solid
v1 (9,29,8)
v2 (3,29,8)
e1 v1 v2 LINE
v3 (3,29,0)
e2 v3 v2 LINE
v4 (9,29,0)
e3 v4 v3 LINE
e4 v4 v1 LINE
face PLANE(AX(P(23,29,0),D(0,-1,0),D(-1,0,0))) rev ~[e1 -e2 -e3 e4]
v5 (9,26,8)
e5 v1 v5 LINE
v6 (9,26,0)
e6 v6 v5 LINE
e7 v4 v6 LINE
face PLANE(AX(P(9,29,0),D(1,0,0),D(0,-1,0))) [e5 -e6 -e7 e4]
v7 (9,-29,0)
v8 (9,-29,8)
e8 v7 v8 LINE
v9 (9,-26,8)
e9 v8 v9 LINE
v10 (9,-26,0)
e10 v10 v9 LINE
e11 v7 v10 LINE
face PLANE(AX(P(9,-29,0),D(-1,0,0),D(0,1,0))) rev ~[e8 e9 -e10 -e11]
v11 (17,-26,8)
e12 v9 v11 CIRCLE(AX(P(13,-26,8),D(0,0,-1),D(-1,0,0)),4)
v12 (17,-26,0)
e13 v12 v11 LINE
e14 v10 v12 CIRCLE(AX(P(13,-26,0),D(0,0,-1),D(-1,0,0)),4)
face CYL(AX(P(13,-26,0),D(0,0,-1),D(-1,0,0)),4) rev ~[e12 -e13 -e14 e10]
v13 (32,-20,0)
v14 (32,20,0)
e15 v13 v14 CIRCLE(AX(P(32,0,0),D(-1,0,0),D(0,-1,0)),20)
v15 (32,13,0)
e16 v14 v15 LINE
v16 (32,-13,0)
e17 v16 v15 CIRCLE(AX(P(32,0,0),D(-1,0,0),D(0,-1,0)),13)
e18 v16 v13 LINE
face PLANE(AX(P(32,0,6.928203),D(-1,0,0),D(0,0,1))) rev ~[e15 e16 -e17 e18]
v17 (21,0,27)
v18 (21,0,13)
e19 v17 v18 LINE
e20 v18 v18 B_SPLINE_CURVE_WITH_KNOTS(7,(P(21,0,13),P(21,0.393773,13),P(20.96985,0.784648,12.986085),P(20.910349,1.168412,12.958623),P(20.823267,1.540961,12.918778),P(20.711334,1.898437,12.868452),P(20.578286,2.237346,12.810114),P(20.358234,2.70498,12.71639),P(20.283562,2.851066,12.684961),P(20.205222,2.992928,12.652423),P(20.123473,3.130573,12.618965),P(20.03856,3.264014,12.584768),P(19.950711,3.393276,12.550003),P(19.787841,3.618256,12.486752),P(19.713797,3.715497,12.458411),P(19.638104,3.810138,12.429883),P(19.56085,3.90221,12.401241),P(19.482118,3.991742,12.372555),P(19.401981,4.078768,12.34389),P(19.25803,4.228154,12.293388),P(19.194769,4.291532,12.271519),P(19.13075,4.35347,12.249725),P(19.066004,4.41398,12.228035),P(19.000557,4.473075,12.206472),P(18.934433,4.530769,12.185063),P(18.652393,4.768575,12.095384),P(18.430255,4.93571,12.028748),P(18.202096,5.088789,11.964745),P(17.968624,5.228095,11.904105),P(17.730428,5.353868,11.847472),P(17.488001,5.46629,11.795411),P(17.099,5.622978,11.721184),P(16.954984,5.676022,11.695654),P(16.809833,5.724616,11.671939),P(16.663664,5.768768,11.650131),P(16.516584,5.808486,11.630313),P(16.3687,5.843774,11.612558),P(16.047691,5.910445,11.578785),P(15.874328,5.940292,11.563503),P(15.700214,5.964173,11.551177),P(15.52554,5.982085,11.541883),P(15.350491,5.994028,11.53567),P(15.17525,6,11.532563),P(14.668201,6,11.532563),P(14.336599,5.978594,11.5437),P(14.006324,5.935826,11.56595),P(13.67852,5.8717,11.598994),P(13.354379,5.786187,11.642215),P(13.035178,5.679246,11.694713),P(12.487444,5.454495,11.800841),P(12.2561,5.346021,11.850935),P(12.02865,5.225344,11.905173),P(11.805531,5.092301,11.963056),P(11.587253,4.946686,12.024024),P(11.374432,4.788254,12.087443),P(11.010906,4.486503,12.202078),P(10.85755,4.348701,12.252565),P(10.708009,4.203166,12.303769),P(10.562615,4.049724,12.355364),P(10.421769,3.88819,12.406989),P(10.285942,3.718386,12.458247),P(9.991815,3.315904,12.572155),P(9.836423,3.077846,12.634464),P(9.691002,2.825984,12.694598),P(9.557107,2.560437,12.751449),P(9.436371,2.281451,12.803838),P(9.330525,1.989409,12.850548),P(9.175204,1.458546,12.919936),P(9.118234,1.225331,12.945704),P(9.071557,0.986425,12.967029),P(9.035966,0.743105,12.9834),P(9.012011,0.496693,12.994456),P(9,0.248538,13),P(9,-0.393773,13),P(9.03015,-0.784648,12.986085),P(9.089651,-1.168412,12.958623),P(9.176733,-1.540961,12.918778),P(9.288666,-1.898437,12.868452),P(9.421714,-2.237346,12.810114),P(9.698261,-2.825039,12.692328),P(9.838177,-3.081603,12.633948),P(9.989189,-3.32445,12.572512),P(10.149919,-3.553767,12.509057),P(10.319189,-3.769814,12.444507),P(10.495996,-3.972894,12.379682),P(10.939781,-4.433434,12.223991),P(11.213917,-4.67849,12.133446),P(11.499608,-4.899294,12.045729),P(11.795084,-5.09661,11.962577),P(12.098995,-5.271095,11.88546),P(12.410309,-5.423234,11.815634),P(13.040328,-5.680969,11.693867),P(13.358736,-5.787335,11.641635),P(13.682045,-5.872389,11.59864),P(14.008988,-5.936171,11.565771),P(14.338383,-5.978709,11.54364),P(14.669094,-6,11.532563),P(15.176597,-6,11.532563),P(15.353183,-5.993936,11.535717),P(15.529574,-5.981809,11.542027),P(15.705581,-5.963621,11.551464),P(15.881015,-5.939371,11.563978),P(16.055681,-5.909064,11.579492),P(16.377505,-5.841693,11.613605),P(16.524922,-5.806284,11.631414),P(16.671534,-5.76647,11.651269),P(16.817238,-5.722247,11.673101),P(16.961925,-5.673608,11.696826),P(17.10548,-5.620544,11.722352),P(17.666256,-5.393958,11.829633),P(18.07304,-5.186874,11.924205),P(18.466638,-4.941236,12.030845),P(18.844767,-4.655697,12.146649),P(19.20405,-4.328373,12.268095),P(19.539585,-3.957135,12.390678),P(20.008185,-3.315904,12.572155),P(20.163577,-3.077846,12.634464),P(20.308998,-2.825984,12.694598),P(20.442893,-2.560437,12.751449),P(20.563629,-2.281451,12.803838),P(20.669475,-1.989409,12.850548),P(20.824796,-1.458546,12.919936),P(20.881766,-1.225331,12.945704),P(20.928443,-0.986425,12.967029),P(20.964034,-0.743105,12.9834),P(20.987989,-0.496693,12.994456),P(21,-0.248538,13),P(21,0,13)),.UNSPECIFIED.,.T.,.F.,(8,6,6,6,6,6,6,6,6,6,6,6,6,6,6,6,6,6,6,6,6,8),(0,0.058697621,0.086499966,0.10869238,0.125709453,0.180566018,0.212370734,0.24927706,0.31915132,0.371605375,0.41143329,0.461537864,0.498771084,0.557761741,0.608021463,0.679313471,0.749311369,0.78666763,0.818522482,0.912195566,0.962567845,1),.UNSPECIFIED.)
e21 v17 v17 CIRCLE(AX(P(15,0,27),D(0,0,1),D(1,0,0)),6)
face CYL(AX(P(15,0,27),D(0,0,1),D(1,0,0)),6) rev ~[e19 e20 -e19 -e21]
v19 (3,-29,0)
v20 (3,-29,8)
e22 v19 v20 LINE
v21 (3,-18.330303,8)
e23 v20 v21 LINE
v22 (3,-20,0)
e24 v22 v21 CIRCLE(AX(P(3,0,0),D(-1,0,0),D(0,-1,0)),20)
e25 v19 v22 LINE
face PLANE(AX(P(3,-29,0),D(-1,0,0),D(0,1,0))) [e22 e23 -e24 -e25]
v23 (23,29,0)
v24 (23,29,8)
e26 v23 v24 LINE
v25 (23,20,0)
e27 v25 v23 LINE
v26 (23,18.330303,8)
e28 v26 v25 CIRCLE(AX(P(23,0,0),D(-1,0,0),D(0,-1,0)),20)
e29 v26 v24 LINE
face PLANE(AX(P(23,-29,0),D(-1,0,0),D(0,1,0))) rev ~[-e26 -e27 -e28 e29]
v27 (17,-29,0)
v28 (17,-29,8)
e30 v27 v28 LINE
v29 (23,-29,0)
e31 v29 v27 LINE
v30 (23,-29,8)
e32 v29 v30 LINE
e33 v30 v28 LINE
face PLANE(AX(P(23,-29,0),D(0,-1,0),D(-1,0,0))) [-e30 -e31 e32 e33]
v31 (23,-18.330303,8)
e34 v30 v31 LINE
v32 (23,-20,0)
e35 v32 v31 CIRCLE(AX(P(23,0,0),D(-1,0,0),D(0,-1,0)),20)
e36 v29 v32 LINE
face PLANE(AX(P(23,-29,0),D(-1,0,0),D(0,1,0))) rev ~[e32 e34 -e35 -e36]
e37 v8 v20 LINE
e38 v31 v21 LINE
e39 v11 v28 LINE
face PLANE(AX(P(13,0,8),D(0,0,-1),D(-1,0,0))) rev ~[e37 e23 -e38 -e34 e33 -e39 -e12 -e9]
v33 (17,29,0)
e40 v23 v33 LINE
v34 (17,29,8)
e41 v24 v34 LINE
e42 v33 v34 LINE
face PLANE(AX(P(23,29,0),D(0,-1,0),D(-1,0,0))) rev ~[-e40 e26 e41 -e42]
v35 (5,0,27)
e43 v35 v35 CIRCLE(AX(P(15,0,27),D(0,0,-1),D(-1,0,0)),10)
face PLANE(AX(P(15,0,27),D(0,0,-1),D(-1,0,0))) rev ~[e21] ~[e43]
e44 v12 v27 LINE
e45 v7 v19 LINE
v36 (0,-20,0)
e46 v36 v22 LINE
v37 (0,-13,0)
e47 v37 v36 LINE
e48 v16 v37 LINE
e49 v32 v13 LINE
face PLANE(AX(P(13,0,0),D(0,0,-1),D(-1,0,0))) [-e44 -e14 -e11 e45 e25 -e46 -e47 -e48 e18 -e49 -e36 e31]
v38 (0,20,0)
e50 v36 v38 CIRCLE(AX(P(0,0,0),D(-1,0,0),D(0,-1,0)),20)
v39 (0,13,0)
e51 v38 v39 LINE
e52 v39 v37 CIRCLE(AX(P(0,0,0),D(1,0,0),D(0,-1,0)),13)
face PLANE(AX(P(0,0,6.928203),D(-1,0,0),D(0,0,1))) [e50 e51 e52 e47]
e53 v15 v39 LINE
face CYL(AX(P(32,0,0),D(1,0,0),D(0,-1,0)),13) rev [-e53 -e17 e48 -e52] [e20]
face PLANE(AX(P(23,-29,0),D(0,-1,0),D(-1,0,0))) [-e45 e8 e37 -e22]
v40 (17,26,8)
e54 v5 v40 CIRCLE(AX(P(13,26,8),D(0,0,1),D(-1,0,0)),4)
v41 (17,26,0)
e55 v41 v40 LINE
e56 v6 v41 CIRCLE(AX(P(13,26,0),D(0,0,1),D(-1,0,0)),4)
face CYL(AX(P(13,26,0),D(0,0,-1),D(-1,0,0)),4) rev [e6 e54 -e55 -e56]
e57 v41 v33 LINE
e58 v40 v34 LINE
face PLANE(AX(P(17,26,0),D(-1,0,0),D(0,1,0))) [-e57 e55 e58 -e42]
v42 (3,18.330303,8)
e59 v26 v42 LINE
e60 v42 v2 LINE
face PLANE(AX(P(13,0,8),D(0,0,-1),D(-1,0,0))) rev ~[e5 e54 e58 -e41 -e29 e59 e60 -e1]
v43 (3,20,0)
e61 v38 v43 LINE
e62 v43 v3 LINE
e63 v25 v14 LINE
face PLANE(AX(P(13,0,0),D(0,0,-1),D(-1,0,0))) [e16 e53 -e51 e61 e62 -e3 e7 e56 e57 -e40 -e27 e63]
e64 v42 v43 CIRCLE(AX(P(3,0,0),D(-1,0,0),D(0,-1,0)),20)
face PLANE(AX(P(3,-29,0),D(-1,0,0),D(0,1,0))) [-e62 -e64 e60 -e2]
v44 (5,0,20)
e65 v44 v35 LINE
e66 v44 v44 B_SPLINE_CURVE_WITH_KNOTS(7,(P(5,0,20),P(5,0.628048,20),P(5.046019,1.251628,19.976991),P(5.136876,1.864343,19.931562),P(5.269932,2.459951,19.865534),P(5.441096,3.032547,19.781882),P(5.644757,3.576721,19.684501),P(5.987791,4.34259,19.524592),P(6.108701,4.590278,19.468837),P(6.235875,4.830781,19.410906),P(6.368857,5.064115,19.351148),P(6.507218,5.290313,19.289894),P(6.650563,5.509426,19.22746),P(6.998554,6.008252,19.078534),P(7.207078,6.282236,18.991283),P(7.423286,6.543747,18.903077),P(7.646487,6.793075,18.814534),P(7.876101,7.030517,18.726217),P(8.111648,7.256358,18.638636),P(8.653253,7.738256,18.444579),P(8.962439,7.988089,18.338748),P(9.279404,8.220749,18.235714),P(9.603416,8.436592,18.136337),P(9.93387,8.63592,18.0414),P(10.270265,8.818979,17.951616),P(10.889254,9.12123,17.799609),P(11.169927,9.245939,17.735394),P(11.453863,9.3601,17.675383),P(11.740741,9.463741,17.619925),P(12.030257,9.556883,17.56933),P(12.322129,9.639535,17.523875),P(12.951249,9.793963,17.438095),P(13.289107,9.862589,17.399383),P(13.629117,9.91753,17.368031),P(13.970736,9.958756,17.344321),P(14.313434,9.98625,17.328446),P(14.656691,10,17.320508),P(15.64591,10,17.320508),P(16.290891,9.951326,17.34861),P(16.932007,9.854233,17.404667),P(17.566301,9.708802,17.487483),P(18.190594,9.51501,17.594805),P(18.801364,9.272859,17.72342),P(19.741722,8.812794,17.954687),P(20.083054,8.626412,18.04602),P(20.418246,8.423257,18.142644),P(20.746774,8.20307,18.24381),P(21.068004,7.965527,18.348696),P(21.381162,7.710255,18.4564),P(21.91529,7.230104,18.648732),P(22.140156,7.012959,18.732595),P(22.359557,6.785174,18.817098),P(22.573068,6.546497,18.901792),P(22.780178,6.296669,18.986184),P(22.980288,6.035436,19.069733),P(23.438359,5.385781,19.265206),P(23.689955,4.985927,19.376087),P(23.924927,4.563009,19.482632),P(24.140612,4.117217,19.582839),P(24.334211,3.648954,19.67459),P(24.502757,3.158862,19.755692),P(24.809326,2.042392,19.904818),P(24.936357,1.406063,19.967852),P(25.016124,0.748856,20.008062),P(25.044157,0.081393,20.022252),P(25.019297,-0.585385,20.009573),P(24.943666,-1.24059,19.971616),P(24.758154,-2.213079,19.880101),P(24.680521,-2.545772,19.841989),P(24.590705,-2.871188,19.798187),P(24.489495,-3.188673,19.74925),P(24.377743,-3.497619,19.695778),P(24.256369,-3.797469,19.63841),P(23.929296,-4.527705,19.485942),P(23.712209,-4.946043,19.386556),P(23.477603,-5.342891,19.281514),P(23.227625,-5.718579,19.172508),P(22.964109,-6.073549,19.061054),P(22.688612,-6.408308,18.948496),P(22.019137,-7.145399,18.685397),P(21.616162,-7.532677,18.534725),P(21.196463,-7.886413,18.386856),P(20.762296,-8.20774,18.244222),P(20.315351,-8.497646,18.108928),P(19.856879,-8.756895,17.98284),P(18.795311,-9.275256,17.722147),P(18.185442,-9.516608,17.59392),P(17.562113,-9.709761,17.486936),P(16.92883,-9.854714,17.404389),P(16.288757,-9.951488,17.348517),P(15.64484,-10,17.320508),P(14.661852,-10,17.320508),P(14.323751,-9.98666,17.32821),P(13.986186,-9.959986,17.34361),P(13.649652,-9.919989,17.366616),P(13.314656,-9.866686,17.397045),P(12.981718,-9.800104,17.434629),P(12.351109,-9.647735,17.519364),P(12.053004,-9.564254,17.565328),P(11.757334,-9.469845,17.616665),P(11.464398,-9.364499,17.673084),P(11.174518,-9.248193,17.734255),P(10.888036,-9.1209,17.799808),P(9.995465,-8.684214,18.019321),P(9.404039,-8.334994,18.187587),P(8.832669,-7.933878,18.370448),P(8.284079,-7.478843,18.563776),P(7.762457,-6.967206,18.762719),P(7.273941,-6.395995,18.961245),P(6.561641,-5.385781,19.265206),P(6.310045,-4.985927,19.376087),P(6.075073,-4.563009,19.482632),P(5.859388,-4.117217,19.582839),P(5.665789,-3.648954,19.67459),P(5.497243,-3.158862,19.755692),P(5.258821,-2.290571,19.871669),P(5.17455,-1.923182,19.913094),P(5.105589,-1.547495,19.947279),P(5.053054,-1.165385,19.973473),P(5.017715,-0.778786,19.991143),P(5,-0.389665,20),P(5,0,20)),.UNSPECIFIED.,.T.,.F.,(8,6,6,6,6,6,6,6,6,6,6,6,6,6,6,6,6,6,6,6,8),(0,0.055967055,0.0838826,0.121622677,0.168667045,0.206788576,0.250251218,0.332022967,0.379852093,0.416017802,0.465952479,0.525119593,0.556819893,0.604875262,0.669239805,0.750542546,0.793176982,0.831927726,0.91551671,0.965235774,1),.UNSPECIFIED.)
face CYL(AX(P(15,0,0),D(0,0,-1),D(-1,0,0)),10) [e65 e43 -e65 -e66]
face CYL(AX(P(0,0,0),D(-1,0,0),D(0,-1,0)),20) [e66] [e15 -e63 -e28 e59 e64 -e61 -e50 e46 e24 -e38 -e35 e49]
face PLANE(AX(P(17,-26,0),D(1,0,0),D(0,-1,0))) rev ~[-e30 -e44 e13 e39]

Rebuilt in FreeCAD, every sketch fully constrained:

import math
import FreeCAD as App
import Part
import Sketcher
from FreeCAD import Vector


def add_polygon(sketch, points):
    """Adds a closed chain of lines whose ends are joined by coincident constraints."""
    first, n = sketch.GeometryCount, len(points)
    for a, b in zip(points, points[1:] + points[:1]):
        sketch.addGeometry(Part.LineSegment(App.Vector(*a, 0), App.Vector(*b, 0)), False)
    for i in range(n):
        sketch.addConstraint(Sketcher.Constraint("Coincident", first + i, 2, first + (i + 1) % n, 1))

doc = App.newDocument("Part")
body = doc.addObject("PartDesign::Body", "Body")

sketch1 = doc.addObject("Sketcher::SketchObject", "Sketch")
body.addObject(sketch1)
sketch1.AttachmentSupport = (doc.YZ_Plane, [""])
sketch1.MapMode = "FlatFace"
sketch1.addGeometry([
    Part.LineSegment(Vector(-20, 0, 0), Vector(20, 0, 0)),
    Part.ArcOfCircle(Part.Circle(Vector(0, 0, 0), Vector(0, 0, 1), 20), math.radians(0), math.radians(180)),
], False)
sketch1.addConstraint([
    Sketcher.Constraint("Coincident", 0, 1, 1, 2),
    Sketcher.Constraint("Coincident", 1, 1, 0, 2),
    Sketcher.Constraint("Horizontal", 0),
    Sketcher.Constraint("Coincident", 1, 3, -1, 1),
    Sketcher.Constraint("PointOnObject", 0, 1, -1),
    Sketcher.Constraint("Radius", 1, 20.0),
])
pad1 = doc.addObject("PartDesign::Pad", "Pad")
body.addObject(pad1)
pad1.Profile = sketch1
pad1.Length = 32

sketch2 = doc.addObject("Sketcher::SketchObject", "Sketch001")
body.addObject(sketch2)
sketch2.AttachmentSupport = (doc.XY_Plane, [""])
sketch2.MapMode = "FlatFace"
sketch2.addGeometry(Part.Circle(Vector(15, 0, 0), Vector(0, 0, 1), 10), False)
sketch2.addConstraint([
    Sketcher.Constraint("PointOnObject", 0, 3, -1),
    Sketcher.Constraint("Diameter", 0, 20.0),
    Sketcher.Constraint("DistanceX", -1, 1, 0, 3, 15.0),
])
pad2 = doc.addObject("PartDesign::Pad", "Pad001")
body.addObject(pad2)
pad2.Profile = sketch2
pad2.Length = 27

sketch3 = doc.addObject("Sketcher::SketchObject", "Sketch002")
body.addObject(sketch3)
sketch3.AttachmentSupport = (doc.XY_Plane, [""])
sketch3.MapMode = "FlatFace"
add_polygon(sketch3, [(23, 29), (23, -29), (3, -29), (3, 29)])
sketch3.addConstraint([
    Sketcher.Constraint("Vertical", 0),
    Sketcher.Constraint("Horizontal", 1),
    Sketcher.Constraint("Vertical", 2),
    Sketcher.Constraint("Horizontal", 3),
    Sketcher.Constraint("DistanceX", 1, 2, 1, 1, 20.0),
    Sketcher.Constraint("DistanceY", 0, 2, 0, 1, 58.0),
    Sketcher.Constraint("DistanceX", -1, 1, 0, 2, 23.0),
    Sketcher.Constraint("DistanceY", 0, 2, -1, 1, 29.0),
])
pad3 = doc.addObject("PartDesign::Pad", "Pad002")
body.addObject(pad3)
pad3.Profile = sketch3
pad3.Length = 8

sketch4 = doc.addObject("Sketcher::SketchObject", "Sketch003")
body.addObject(sketch4)
sketch4.AttachmentSupport = (doc.XY_Plane, [""])
sketch4.MapMode = "FlatFace"
sketch4.AttachmentOffset = App.Placement(Vector(0, 0, 27), App.Rotation())
sketch4.addGeometry(Part.Circle(Vector(15, 0, 0), Vector(0, 0, 1), 6), False)
sketch4.addConstraint([
    Sketcher.Constraint("PointOnObject", 0, 3, -1),
    Sketcher.Constraint("Diameter", 0, 12.0),
    Sketcher.Constraint("DistanceX", -1, 1, 0, 3, 15.0),
])
pocket1 = doc.addObject("PartDesign::Pocket", "Pocket")
body.addObject(pocket1)
pocket1.Profile = sketch4
pocket1.Type = "ThroughAll"

sketch5 = doc.addObject("Sketcher::SketchObject", "Sketch004")
body.addObject(sketch5)
sketch5.AttachmentSupport = (doc.YZ_Plane, [""])
sketch5.MapMode = "FlatFace"
sketch5.AttachmentOffset = App.Placement(Vector(0, 0, 32), App.Rotation())
sketch5.addGeometry([
    Part.LineSegment(Vector(-13, 0, 0), Vector(13, 0, 0)),
    Part.ArcOfCircle(Part.Circle(Vector(0, 0, 0), Vector(0, 0, 1), 13), math.radians(0), math.radians(180)),
], False)
sketch5.addConstraint([
    Sketcher.Constraint("Coincident", 0, 1, 1, 2),
    Sketcher.Constraint("Coincident", 1, 1, 0, 2),
    Sketcher.Constraint("Horizontal", 0),
    Sketcher.Constraint("Coincident", 1, 3, -1, 1),
    Sketcher.Constraint("PointOnObject", 0, 1, -1),
    Sketcher.Constraint("Radius", 1, 13.0),
])
pocket2 = doc.addObject("PartDesign::Pocket", "Pocket001")
body.addObject(pocket2)
pocket2.Profile = sketch5
pocket2.Type = "ThroughAll"

sketch6 = doc.addObject("Sketcher::SketchObject", "Sketch005")
body.addObject(sketch6)
sketch6.AttachmentSupport = (doc.XY_Plane, [""])
sketch6.MapMode = "FlatFace"
sketch6.addGeometry([
    Part.LineSegment(Vector(17, 29, 0), Vector(17, 26, 0)),
    Part.ArcOfCircle(Part.Circle(Vector(13, 26, 0), Vector(0, 0, 1), 4), math.radians(180), math.radians(360)),
    Part.LineSegment(Vector(9, 26, 0), Vector(9, 29, 0)),
    Part.LineSegment(Vector(9, 29, 0), Vector(17, 29, 0)),
    Part.LineSegment(Vector(17, -26, 0), Vector(17, -29, 0)),
    Part.LineSegment(Vector(17, -29, 0), Vector(9, -29, 0)),
    Part.LineSegment(Vector(9, -29, 0), Vector(9, -26, 0)),
    Part.ArcOfCircle(Part.Circle(Vector(13, -26, 0), Vector(0, 0, 1), 4), math.radians(0), math.radians(180)),
], False)
sketch6.addConstraint([
    Sketcher.Constraint("Tangent", 0, 2, 1, 2),
    Sketcher.Constraint("Tangent", 1, 1, 2, 1),
    Sketcher.Constraint("Coincident", 2, 2, 3, 1),
    Sketcher.Constraint("Coincident", 3, 2, 0, 1),
    Sketcher.Constraint("Coincident", 4, 2, 5, 1),
    Sketcher.Constraint("Coincident", 5, 2, 6, 1),
    Sketcher.Constraint("Tangent", 6, 2, 7, 2),
    Sketcher.Constraint("Tangent", 7, 1, 4, 1),
    Sketcher.Constraint("Vertical", 0),
    Sketcher.Constraint("Vertical", 2),
    Sketcher.Constraint("Horizontal", 3),
    Sketcher.Constraint("Vertical", 4),
    Sketcher.Constraint("Horizontal", 5),
    Sketcher.Constraint("Vertical", 6),
    Sketcher.Constraint("Equal", 1, 7),
    Sketcher.Constraint("Symmetric", 1, 3, 7, 3, -1),
    Sketcher.Constraint("Equal", 2, 4),
    Sketcher.Constraint("Radius", 1, 4.0),
    Sketcher.Constraint("DistanceY", 0, 2, 0, 1, 3.0),
    Sketcher.Constraint("DistanceX", -1, 1, 1, 3, 13.0),
    Sketcher.Constraint("DistanceY", -1, 1, 1, 3, 26.0),
])
pocket3 = doc.addObject("PartDesign::Pocket", "Pocket002")
body.addObject(pocket3)
pocket3.Profile = sketch6
pocket3.Length = 8
pocket3.Reversed = True

doc.recompute()
